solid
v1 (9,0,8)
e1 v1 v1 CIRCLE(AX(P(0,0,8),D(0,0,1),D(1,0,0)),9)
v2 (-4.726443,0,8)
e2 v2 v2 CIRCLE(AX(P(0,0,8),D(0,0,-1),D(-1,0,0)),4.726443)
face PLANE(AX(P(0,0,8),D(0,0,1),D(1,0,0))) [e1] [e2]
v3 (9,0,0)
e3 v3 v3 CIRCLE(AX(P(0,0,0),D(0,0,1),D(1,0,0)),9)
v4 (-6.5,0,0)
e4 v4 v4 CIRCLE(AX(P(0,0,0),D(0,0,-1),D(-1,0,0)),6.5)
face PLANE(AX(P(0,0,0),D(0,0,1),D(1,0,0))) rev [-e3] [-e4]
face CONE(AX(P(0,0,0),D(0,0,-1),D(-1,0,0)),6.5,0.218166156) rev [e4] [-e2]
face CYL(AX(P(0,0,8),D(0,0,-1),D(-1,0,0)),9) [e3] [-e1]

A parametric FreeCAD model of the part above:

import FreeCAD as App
import Part
import Sketcher

V = App.Vector


def faces_at(feature, points):
    """Names of the faces that lie closest to the given points."""
    faces = feature.Shape.Faces
    near = lambda p: min(range(len(faces)), key=lambda i: faces[i].distToShape(Part.Vertex(*p))[0])
    return sorted({f"Face{near(p) + 1}" for p in points})

doc = App.newDocument("Part")
body = doc.addObject("PartDesign::Body", "Body")

sketch1 = body.newObject("Sketcher::SketchObject", "Sketch")
sketch1.AttachmentSupport = (doc.getObject("XY_Plane"), [""])
sketch1.MapMode = "FlatFace"
sketch1.addGeometry(Part.Circle(V(0, 0, 0), V(0, 0, 1), 9), False)
sketch1.addConstraint([
    Sketcher.Constraint("Coincident", 0, 3, -1, 1),
    Sketcher.Constraint("Diameter", 0, 18.0),
])
pad1 = body.newObject("PartDesign::Pad", "Pad")
pad1.Profile = sketch1
pad1.Length = 8
body2 = doc.addObject("PartDesign::Body", "Body001")

sketch2 = body2.newObject("Sketcher::SketchObject", "Sketch001")
sketch2.AttachmentSupport = (doc.getObject("XY_Plane001"), [""])
sketch2.MapMode = "FlatFace"
sketch2.addGeometry(Part.Circle(V(0, 0, 0), V(0, 0, 1), 6), False)
sketch2.addConstraint([
    Sketcher.Constraint("Coincident", 0, 3, -1, 1),
    Sketcher.Constraint("Diameter", 0, 13.0),
])
pad2 = body2.newObject("PartDesign::Pad", "Pad001")
pad2.Profile = sketch2
pad2.Length = 16.033296
doc.recompute()

draft = body2.newObject("PartDesign::Draft", "Draft")
draft.Base = (pad2, faces_at(pad2, [(6.5, 0, 8.017)]))
draft.NeutralPlane = (doc.getObject("XY_Plane001"), [""])
draft.Angle = 12.5
draft.Reversed = False
doc.recompute()

boolean = body.newObject("PartDesign::Boolean", "Boolean")
boolean.Type = "Cut"
boolean.addObjects([body2])

doc.recompute()
